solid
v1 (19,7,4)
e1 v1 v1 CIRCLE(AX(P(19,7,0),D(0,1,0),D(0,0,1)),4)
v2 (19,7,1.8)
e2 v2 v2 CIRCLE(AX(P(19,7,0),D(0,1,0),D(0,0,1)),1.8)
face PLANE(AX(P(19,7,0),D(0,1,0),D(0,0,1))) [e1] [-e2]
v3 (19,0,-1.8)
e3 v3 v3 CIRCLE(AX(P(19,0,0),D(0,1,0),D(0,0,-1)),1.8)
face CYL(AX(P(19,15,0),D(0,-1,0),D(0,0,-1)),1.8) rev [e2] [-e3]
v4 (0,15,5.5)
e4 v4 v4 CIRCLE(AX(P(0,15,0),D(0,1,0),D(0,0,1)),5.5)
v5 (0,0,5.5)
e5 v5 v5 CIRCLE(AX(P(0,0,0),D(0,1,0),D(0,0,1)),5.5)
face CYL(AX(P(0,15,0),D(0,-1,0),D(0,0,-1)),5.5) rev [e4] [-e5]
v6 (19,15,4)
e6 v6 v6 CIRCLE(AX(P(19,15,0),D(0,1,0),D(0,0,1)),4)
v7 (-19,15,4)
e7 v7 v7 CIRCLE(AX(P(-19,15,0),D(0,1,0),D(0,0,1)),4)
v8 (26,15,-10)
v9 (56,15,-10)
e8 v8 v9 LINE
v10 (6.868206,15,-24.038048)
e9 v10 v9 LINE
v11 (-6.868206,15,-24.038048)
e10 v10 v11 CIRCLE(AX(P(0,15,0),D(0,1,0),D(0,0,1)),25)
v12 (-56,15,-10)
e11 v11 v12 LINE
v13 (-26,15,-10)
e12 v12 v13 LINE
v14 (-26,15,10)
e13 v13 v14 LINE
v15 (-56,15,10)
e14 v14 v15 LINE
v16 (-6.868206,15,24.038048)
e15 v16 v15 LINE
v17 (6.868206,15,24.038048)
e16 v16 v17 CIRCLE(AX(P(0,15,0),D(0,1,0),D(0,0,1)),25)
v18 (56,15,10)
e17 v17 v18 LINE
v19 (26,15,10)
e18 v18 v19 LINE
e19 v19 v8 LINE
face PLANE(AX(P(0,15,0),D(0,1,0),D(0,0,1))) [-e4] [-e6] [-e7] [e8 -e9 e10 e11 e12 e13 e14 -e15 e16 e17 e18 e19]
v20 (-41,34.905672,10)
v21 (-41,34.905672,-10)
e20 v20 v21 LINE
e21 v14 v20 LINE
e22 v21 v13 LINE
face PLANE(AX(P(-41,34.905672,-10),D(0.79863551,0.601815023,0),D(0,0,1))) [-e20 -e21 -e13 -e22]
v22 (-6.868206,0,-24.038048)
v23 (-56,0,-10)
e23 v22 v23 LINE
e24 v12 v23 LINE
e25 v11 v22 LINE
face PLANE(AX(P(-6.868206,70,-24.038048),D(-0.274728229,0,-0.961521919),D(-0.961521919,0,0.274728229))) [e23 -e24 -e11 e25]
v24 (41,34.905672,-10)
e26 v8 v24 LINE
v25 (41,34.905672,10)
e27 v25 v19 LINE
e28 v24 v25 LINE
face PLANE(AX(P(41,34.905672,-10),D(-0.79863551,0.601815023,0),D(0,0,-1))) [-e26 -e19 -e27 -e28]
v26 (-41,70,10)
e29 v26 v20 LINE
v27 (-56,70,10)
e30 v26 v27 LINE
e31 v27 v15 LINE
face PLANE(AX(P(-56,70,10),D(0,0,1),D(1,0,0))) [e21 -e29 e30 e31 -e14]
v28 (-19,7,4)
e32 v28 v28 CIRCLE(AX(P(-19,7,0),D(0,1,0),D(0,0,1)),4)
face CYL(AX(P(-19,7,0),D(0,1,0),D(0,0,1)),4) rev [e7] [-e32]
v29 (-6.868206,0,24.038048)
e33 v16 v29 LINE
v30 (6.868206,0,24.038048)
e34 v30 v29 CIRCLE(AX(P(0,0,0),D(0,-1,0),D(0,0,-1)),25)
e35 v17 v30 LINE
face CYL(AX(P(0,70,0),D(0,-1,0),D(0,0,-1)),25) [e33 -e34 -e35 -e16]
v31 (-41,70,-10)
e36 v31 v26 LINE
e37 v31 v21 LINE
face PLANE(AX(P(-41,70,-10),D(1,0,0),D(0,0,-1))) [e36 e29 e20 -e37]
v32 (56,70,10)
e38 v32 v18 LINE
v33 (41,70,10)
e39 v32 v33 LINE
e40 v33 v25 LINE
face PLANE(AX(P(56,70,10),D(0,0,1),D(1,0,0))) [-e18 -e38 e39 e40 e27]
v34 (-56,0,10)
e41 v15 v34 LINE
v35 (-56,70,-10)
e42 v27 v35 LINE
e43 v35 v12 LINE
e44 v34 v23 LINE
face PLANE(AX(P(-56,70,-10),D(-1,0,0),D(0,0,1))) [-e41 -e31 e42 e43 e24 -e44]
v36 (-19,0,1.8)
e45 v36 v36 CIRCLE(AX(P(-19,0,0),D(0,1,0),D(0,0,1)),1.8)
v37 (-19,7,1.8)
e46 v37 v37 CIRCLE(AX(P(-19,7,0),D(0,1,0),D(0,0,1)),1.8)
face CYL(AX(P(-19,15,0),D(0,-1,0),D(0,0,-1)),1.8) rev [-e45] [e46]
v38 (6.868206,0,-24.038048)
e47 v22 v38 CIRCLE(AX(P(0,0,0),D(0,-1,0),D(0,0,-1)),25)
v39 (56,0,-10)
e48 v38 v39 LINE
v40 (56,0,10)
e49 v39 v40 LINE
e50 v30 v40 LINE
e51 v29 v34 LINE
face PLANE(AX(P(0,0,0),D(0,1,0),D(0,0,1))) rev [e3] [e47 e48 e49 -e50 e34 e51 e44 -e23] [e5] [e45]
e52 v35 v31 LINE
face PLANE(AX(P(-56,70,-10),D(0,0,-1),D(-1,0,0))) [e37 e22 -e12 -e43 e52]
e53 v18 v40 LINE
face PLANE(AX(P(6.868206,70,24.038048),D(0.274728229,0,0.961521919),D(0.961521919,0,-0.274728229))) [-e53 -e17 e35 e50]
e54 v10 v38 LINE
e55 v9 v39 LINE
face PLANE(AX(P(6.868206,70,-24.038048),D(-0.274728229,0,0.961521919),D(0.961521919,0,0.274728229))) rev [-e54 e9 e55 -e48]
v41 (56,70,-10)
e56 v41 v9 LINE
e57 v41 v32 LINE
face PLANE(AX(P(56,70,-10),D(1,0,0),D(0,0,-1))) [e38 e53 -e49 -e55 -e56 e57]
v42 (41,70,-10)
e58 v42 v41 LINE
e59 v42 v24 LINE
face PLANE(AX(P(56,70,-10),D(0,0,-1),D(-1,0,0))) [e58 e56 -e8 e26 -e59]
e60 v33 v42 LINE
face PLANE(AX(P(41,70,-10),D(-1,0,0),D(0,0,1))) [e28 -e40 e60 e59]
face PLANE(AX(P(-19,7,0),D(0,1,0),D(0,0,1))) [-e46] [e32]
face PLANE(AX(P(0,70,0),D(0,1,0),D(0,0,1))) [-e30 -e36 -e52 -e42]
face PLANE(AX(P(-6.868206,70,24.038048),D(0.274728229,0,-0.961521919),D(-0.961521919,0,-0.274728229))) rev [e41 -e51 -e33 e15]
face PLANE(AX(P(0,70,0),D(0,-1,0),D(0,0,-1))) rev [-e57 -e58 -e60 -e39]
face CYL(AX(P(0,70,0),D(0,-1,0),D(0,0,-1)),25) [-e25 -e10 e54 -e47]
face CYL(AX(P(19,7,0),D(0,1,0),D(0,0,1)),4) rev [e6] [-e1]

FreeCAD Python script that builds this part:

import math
import FreeCAD as App
import Part
import Sketcher

V = App.Vector


def edges_at(feature, points):
    """Names of the edges that pass closest to the given points."""
    edges = feature.Shape.Edges
    near = lambda p: min(range(len(edges)), key=lambda i: edges[i].distToShape(Part.Vertex(*p))[0])
    return sorted({f"Edge{near(p) + 1}" for p in points})


def add_polygon(sketch, points):
    """Adds a closed chain of lines whose ends are joined by coincident constraints."""
    first, n = sketch.GeometryCount, len(points)
    for a, b in zip(points, points[1:] + points[:1]):
        sketch.addGeometry(Part.LineSegment(App.Vector(*a, 0), App.Vector(*b, 0)), False)
    for i in range(n):
        sketch.addConstraint(Sketcher.Constraint("Coincident", first + i, 2, first + (i + 1) % n, 1))

doc = App.newDocument("Part")
body = doc.addObject("PartDesign::Body", "Body")

# Sketch on XZ plane
sketch1 = body.newObject("Sketcher::SketchObject", "Sketch")
sketch1.AttachmentSupport = (doc.getObject("XZ_Plane"), [""])
sketch1.MapMode = "FlatFace"
sketch1.addGeometry([
    Part.Circle(V(0, 0, 0), V(0, 0, 1), 25),
    Part.Circle(V(-19, 0, 0), V(0, 0, 1), 1.8),
    Part.Circle(V(0, 0, 0), V(0, 0, 1), 5.5),
    Part.Circle(V(19, 0, 0), V(0, 0, 1), 1.8),
], False)
sketch1.addConstraint([
    Sketcher.Constraint("Coincident", 0, 3, -1, 1),
    Sketcher.Constraint("Coincident", 2, 3, -1, 1),
    Sketcher.Constraint("Equal", 1, 3),
    Sketcher.Constraint("Symmetric", 1, 3, 3, 3, -1, 1),
    Sketcher.Constraint("PointOnObject", 1, 3, -1),
    Sketcher.Constraint("Diameter", 0, 50.0),
    Sketcher.Constraint("Diameter", 2, 11.0),
    Sketcher.Constraint("Diameter", 1, 3.6),
    Sketcher.Constraint("DistanceX", 1, 3, -1, 1, 19.0),
])
pad1 = body.newObject("PartDesign::Pad", "Pad")
pad1.Profile = sketch1
pad1.Length = 15
pad1.Reversed = True

# Sketch on XZ plane
sketch2 = body.newObject("Sketcher::SketchObject", "Sketch001")
sketch2.AttachmentSupport = (doc.getObject("XZ_Plane"), [""])
sketch2.MapMode = "FlatFace"
sketch2.AttachmentOffset = App.Placement(V(0, 0, -15), App.Rotation())
sketch2.addGeometry([
    Part.Circle(V(-19, 0, 0), V(0, 0, 1), 4),
    Part.Circle(V(19, 0, 0), V(0, 0, 1), 4),
], False)
sketch2.addConstraint([
    Sketcher.Constraint("Equal", 0, 1),
    Sketcher.Constraint("Symmetric", 0, 3, 1, 3, -1, 1),
    Sketcher.Constraint("PointOnObject", 0, 3, -1),
    Sketcher.Constraint("Diameter", 0, 8.0),
    Sketcher.Constraint("DistanceX", 0, 3, -1, 1, 19.0),
])
pocket1 = body.newObject("PartDesign::Pocket", "Pocket")
pocket1.Profile = sketch2
pocket1.Length = 8
pocket1.Reversed = True

# Sketch on XZ plane
sketch3 = body.newObject("Sketcher::SketchObject", "Sketch002")
sketch3.AttachmentSupport = (doc.getObject("XZ_Plane"), [""])
sketch3.MapMode = "FlatFace"
add_polygon(sketch3, [(-41, 25), (-41, -25), (41, -25), (41, 25)])  # lines 0-3
sketch3.addGeometry(Part.Circle(V(0, 0, 0), V(0, 0, 1), 24), False)  # 4
sketch3.addConstraint([
    Sketcher.Constraint("Vertical", 0),
    Sketcher.Constraint("Horizontal", 1),
    Sketcher.Constraint("Vertical", 2),
    Sketcher.Constraint("Horizontal", 3),
    Sketcher.Constraint("Coincident", 4, 3, -1, 1),
    Sketcher.Constraint("Symmetric", 0, 2, 2, 2, -1, 1),
    Sketcher.Constraint("Diameter", 4, 49.0),
    Sketcher.Constraint("DistanceX", 1, 1, 1, 2, 82.0),
    Sketcher.Constraint("DistanceY", 0, 2, 0, 1, 50.0),
])
pad2 = body.newObject("PartDesign::Pad", "Pad001")
pad2.Profile = sketch3
pad2.Length = 15
pad2.Reversed = True

# Sketch on XZ plane
sketch4 = body.newObject("Sketcher::SketchObject", "Sketch003")
sketch4.AttachmentSupport = (doc.getObject("XZ_Plane"), [""])
sketch4.MapMode = "FlatFace"
add_polygon(sketch4, [(-56, 10), (-56, -10), (-41, -10), (-41, 10)])  # lines 0-3
add_polygon(sketch4, [(41, 10), (41, -10), (56, -10), (56, 10)])  # lines 4-7
sketch4.addConstraint([
    Sketcher.Constraint("Vertical", 0),
    Sketcher.Constraint("Horizontal", 1),
    Sketcher.Constraint("Vertical", 2),
    Sketcher.Constraint("Horizontal", 3),
    Sketcher.Constraint("Vertical", 4),
    Sketcher.Constraint("Horizontal", 5),
    Sketcher.Constraint("Vertical", 6),
    Sketcher.Constraint("Horizontal", 7),
    Sketcher.Constraint("Symmetric", 2, 2, 4, 2, -1, 1),
    Sketcher.Constraint("Symmetric", 0, 2, 6, 2, -1, 1),
    Sketcher.Constraint("Horizontal", 1, 2, 4, 2),
    Sketcher.Constraint("DistanceX", 1, 1, 1, 2, 15.0),
    Sketcher.Constraint("DistanceY", 0, 2, 0, 1, 20.0),
    Sketcher.Constraint("DistanceX", 0, 2, -1, 1, 56.0),
])
pad3 = body.newObject("PartDesign::Pad", "Pad002")
pad3.Profile = sketch4
pad3.Length = 70
pad3.Reversed = True

# Sketch on XZ plane
sketch5 = body.newObject("Sketcher::SketchObject", "Sketch004")
sketch5.AttachmentSupport = (doc.getObject("XZ_Plane"), [""])
sketch5.MapMode = "FlatFace"
sketch5.addGeometry([
    Part.LineSegment(V(-41, -14, 0), V(-56, -10, 0)),  # 0
    Part.LineSegment(V(-56, -10, 0), V(-56, -25, 0)),  # 1
    Part.LineSegment(V(-56, -25, 0), V(0, -25, 0)),  # 2
    Part.ArcOfCircle(Part.Circle(V(0, 0, 0), V(0, 0, 1), 25), math.radians(-105.95), math.radians(-90)),  # 3
    Part.LineSegment(V(-7, -24, 0), V(-41, -14, 0)),  # 4
    Part.LineSegment(V(-56, 25, 0), V(-56, 10, 0)),  # 5
    Part.LineSegment(V(-56, 10, 0), V(-41, 14, 0)),  # 6
    Part.LineSegment(V(-41, 14, 0), V(-7, 24, 0)),  # 7
    Part.ArcOfCircle(Part.Circle(V(0, 0, 0), V(0, 0, 1), 25), math.radians(90), math.radians(105.95)),  # 8
    Part.LineSegment(V(0, 25, 0), V(-56, 25, 0)),  # 9
    Part.ArcOfCircle(Part.Circle(V(0, 0, 0), V(0, 0, 1), 25), math.radians(74.05), math.radians(90)),  # 10
    Part.LineSegment(V(7, 24, 0), V(41, 14, 0)),  # 11
    Part.LineSegment(V(41, 14, 0), V(56, 10, 0)),  # 12
    Part.LineSegment(V(56, 10, 0), V(56, 25, 0)),  # 13
    Part.LineSegment(V(56, 25, 0), V(0, 25, 0)),  # 14
    Part.ArcOfCircle(Part.Circle(V(0, 0, 0), V(0, 0, 1), 25), math.radians(-90), math.radians(-74.05)),  # 15
    Part.LineSegment(V(0, -25, 0), V(56, -25, 0)),  # 16
    Part.LineSegment(V(56, -25, 0), V(56, -10, 0)),  # 17
    Part.LineSegment(V(56, -10, 0), V(41, -14, 0)),  # 18
    Part.LineSegment(V(41, -14, 0), V(7, -24, 0)),  # 19
], False)
sketch5.addConstraint([
    Sketcher.Constraint("Coincident", 0, 2, 1, 1),
    Sketcher.Constraint("Coincident", 1, 2, 2, 1),
    Sketcher.Constraint("Tangent", 2, 2, 3, 2),
    Sketcher.Constraint("Tangent", 3, 1, 4, 1),
    Sketcher.Constraint("Coincident", 4, 2, 0, 1),
    Sketcher.Constraint("Coincident", 5, 2, 6, 1),
    Sketcher.Constraint("Coincident", 6, 2, 7, 1),
    Sketcher.Constraint("Tangent", 7, 2, 8, 2),
    Sketcher.Constraint("Tangent", 8, 1, 9, 1),
    Sketcher.Constraint("Coincident", 9, 2, 5, 1),
    Sketcher.Constraint("Tangent", 10, 1, 11, 1),
    Sketcher.Constraint("Coincident", 11, 2, 12, 1),
    Sketcher.Constraint("Coincident", 12, 2, 13, 1),
    Sketcher.Constraint("Coincident", 13, 2, 14, 1),
    Sketcher.Constraint("Tangent", 14, 2, 10, 2),
    Sketcher.Constraint("Tangent", 15, 1, 16, 1),
    Sketcher.Constraint("Coincident", 16, 2, 17, 1),
    Sketcher.Constraint("Coincident", 17, 2, 18, 1),
    Sketcher.Constraint("Coincident", 18, 2, 19, 1),
    Sketcher.Constraint("Tangent", 19, 2, 15, 2),
    Sketcher.Constraint("Vertical", 1),
    Sketcher.Constraint("Horizontal", 2),
    Sketcher.Constraint("Vertical", 5),
    Sketcher.Constraint("Horizontal", 9),
    Sketcher.Constraint("Vertical", 13),
    Sketcher.Constraint("Horizontal", 14),
    Sketcher.Constraint("Horizontal", 16),
    Sketcher.Constraint("Vertical", 17),
    Sketcher.Constraint("Coincident", 3, 3, -1, 1),
    Sketcher.Constraint("Coincident", 8, 3, -1, 1),
    Sketcher.Constraint("Coincident", 10, 3, -1, 1),
    Sketcher.Constraint("Coincident", 15, 3, -1, 1),
    Sketcher.Constraint("Equal", 3, 8),
    Sketcher.Constraint("Equal", 8, 10),
    Sketcher.Constraint("Equal", 10, 15),
    Sketcher.Constraint("Symmetric", 4, 2, 11, 2, -1, 1),
    Sketcher.Constraint("Symmetric", 0, 2, 12, 2, -1, 1),
    Sketcher.Constraint("Symmetric", 5, 2, 17, 2, -1, 1),
    Sketcher.Constraint("Symmetric", 6, 2, 18, 2, -1, 1),
    Sketcher.Constraint("Symmetric", 6, 2, 11, 2, -2),
    Sketcher.Constraint("Symmetric", 5, 2, 12, 2, -2),
    Sketcher.Constraint("Parallel", 0, 4),
    Sketcher.Constraint("Radius", 3, 25.0),
    Sketcher.Constraint("DistanceX", 2, 1, 2, 2, 56.0),
    Sketcher.Constraint("DistanceY", 1, 2, 1, 1, 15.0),
    Sketcher.Constraint("DistanceX", 4, 2, -1, 1, 41.0),
])
pocket2 = body.newObject("PartDesign::Pocket", "Pocket001")
pocket2.Profile = sketch5
pocket2.Type = "ThroughAll"
pocket2.Midplane = True

# Sketch on XZ plane
sketch6 = body.newObject("Sketcher::SketchObject", "Sketch005")
sketch6.AttachmentSupport = (doc.getObject("XZ_Plane"), [""])
sketch6.MapMode = "FlatFace"
add_polygon(sketch6, [(-41, 14), (-56, 10), (-56, -10), (-41, -14)])  # lines 0-3
add_polygon(sketch6, [(56, 10), (41, 14), (41, -14), (56, -10)])  # lines 4-7
sketch6.addConstraint([
    Sketcher.Constraint("Vertical", 1),
    Sketcher.Constraint("Vertical", 3),
    Sketcher.Constraint("Vertical", 5),
    Sketcher.Constraint("Vertical", 7),
    Sketcher.Constraint("Symmetric", 2, 2, 4, 2, -1, 1),
    Sketcher.Constraint("Symmetric", 0, 2, 6, 2, -1, 1),
    Sketcher.Constraint("Parallel", 2, 4),
    Sketcher.Constraint("Parallel", 0, 6),
    Sketcher.Constraint("Horizontal", 3, 2, 4, 2),
    Sketcher.Constraint("Horizontal", 1, 2, 6, 2),
    Sketcher.Constraint("DistanceY", 1, 2, 1, 1, 20.0),
    Sketcher.Constraint("DistanceX", 0, 2, -1, 1, 56.0),
    Sketcher.Constraint("DistanceX", 2, 2, -1, 1, 41.0),
    Sketcher.Constraint("DistanceY", 3, 1, 3, 2, 28.571668),
])
pad4 = body.newObject("PartDesign::Pad", "Pad003")
pad4.Profile = sketch6
pad4.Length = 15
pad4.Reversed = True
doc.recompute()

chamfer = body.newObject("PartDesign::Chamfer", "Chamfer")
chamfer.Base = (pad4, edges_at(pad4, [(-41, 15, 0), (41, 15, 0)]))
chamfer.ChamferType = "Two distances"
chamfer.Size = 15
chamfer.Size2 = 19.905672

doc.recompute()
